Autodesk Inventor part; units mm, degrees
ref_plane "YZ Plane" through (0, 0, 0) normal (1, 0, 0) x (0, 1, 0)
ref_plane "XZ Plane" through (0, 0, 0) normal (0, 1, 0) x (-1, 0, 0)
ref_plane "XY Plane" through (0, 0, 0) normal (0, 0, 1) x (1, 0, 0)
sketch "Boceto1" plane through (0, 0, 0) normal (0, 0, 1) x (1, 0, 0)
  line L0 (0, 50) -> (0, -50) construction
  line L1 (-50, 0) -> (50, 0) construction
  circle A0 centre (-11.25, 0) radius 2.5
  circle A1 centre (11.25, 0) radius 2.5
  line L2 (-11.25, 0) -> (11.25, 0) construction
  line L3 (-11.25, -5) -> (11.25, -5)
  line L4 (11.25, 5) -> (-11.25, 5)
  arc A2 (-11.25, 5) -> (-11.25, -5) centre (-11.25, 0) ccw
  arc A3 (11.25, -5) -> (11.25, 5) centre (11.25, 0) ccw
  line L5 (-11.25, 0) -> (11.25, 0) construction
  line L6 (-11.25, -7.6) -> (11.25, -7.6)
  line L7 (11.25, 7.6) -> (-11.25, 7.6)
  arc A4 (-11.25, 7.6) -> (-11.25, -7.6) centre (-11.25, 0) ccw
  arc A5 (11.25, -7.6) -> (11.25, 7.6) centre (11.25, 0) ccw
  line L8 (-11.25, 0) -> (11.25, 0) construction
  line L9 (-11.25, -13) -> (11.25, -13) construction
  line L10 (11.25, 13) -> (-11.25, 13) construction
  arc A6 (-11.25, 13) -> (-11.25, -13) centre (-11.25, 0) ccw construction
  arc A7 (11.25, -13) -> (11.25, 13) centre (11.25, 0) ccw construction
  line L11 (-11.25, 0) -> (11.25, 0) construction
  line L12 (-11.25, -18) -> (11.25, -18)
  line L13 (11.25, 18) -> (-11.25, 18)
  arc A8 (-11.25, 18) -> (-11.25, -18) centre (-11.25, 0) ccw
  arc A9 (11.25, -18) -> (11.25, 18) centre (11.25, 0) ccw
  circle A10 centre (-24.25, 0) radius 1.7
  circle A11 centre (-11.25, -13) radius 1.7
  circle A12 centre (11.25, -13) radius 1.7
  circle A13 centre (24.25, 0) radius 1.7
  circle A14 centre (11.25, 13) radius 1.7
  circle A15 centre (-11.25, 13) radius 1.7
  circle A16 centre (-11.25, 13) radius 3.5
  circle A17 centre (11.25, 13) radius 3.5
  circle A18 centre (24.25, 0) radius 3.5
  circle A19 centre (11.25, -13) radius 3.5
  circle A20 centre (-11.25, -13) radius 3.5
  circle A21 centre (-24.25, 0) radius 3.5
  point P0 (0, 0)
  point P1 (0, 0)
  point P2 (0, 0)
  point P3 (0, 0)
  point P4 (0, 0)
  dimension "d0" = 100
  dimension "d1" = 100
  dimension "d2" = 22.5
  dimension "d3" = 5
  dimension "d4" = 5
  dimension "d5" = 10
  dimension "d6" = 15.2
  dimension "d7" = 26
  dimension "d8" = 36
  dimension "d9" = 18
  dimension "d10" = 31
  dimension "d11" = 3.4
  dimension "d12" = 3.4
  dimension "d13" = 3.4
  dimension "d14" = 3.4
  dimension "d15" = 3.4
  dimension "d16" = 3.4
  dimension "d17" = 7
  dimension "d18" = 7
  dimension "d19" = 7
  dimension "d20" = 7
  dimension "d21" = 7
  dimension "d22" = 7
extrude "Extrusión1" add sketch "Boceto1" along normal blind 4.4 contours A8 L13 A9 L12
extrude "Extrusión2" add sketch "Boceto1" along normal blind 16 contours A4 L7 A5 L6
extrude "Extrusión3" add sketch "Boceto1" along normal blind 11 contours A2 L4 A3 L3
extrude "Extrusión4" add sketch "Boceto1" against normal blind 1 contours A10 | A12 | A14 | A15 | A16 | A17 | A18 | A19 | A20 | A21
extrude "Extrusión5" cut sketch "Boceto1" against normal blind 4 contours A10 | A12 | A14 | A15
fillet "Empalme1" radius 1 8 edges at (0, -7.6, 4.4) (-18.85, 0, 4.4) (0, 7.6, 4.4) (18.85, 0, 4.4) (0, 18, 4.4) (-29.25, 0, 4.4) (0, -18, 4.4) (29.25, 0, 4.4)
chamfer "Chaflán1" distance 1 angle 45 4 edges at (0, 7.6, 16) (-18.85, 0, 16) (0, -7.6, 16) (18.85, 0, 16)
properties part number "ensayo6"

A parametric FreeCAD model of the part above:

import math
import FreeCAD as App
import Part
import Sketcher


def edges_at(feature, points):
    """Names of the edges that pass closest to the given points."""
    edges = feature.Shape.Edges
    near = lambda p: min(range(len(edges)), key=lambda i: edges[i].distToShape(Part.Vertex(*p))[0])
    return sorted({f"Edge{near(p) + 1}" for p in points})

doc = App.newDocument("Part")
body = doc.addObject("PartDesign::Body", "Body")
body.AllowCompound = True

sketch1 = body.newObject("Sketcher::SketchObject", "Sketch")
sketch1.AttachmentSupport = (doc.getObject("XY_Plane"), [""])
sketch1.MapMode = "FlatFace"
sketch1.addGeometry(Part.ArcOfCircle(Part.Circle(App.Vector(-11.2, 0, 0), App.Vector(0, 0, 1), 18), math.radians(90), math.radians(270)), False)
sketch1.addGeometry(Part.LineSegment(App.Vector(-11.2, -18, 0), App.Vector(11.2, -18, 0)), False)
sketch1.addGeometry(Part.ArcOfCircle(Part.Circle(App.Vector(11.2, 0, 0), App.Vector(0, 0, 1), 18), math.radians(-90), math.radians(90)), False)
sketch1.addGeometry(Part.LineSegment(App.Vector(11.2, 18, 0), App.Vector(-11.2, 18, 0)), False)
sketch1.addGeometry(Part.Circle(App.Vector(-11.2, -13, 0), App.Vector(0, 0, 1), 3.5), False)
sketch1.addGeometry(Part.Circle(App.Vector(11.2, -13, 0), App.Vector(0, 0, 1), 3.5), False)
sketch1.addGeometry(Part.Circle(App.Vector(-24.2, 0, 0), App.Vector(0, 0, 1), 3.5), False)
sketch1.addGeometry(Part.Circle(App.Vector(-11.2, 13, 0), App.Vector(0, 0, 1), 3.5), False)
sketch1.addGeometry(Part.LineSegment(App.Vector(11.2, -7.6, 0), App.Vector(-11.2, -7.6, 0)), False)
sketch1.addGeometry(Part.ArcOfCircle(Part.Circle(App.Vector(-11.2, 0, 0), App.Vector(0, 0, 1), 7.6), math.radians(90), math.radians(270)), False)
sketch1.addGeometry(Part.LineSegment(App.Vector(-11.2, 7.6, 0), App.Vector(11.2, 7.6, 0)), False)
sketch1.addGeometry(Part.ArcOfCircle(Part.Circle(App.Vector(11.2, 0, 0), App.Vector(0, 0, 1), 7.6), math.radians(-90), math.radians(90)), False)
sketch1.addGeometry(Part.Circle(App.Vector(24.2, 0, 0), App.Vector(0, 0, 1), 3.5), False)
sketch1.addGeometry(Part.Circle(App.Vector(11.2, 13, 0), App.Vector(0, 0, 1), 3.5), False)
sketch1.addConstraint(Sketcher.Constraint("Tangent", 0, 2, 1, 1))
sketch1.addConstraint(Sketcher.Constraint("Tangent", 1, 2, 2, 1))
sketch1.addConstraint(Sketcher.Constraint("Tangent", 2, 2, 3, 1))
sketch1.addConstraint(Sketcher.Constraint("Tangent", 3, 2, 0, 1))
sketch1.addConstraint(Sketcher.Constraint("Tangent", 8, 2, 9, 2))
sketch1.addConstraint(Sketcher.Constraint("Tangent", 9, 1, 10, 1))
sketch1.addConstraint(Sketcher.Constraint("Tangent", 10, 2, 11, 2))
sketch1.addConstraint(Sketcher.Constraint("Tangent", 11, 1, 8, 1))
sketch1.addConstraint(Sketcher.Constraint("Horizontal", 1))
sketch1.addConstraint(Sketcher.Constraint("Horizontal", 3))
sketch1.addConstraint(Sketcher.Constraint("Horizontal", 8))
sketch1.addConstraint(Sketcher.Constraint("Horizontal", 10))
sketch1.addConstraint(Sketcher.Constraint("Coincident", 9, 3, 0, 3))
sketch1.addConstraint(Sketcher.Constraint("Equal", 4, 5))
sketch1.addConstraint(Sketcher.Constraint("Equal", 5, 6))
sketch1.addConstraint(Sketcher.Constraint("Equal", 6, 7))
sketch1.addConstraint(Sketcher.Constraint("Equal", 7, 12))
sketch1.addConstraint(Sketcher.Constraint("Equal", 12, 13))
sketch1.addConstraint(Sketcher.Constraint("Symmetric", 0, 3, 2, 3, -1, 1))
sketch1.addConstraint(Sketcher.Constraint("Symmetric", 5, 3, 7, 3, -1, 1))
sketch1.addConstraint(Sketcher.Constraint("Symmetric", 6, 3, 12, 3, -1, 1))
sketch1.addConstraint(Sketcher.Constraint("Symmetric", 4, 3, 13, 3, -1, 1))
sketch1.addConstraint(Sketcher.Constraint("Symmetric", 4, 3, 5, 3, -2))
sketch1.addConstraint(Sketcher.Constraint("PointOnObject", 6, 3, -1))
sketch1.addConstraint(Sketcher.Constraint("Vertical", 0, 3, 4, 3))
sketch1.addConstraint(Sketcher.Constraint("Vertical", 5, 3, 11, 3))
sketch1.addConstraint(Sketcher.Constraint("Diameter", 4, 7.0))
sketch1.addConstraint(Sketcher.Constraint("Radius", 0, 18.0))
sketch1.addConstraint(Sketcher.Constraint("Radius", 9, 7.6))
sketch1.addConstraint(Sketcher.Constraint("DistanceX", 1, 1, 1, 2, 22.5))
sketch1.addConstraint(Sketcher.Constraint("DistanceY", 4, 3, 7, 3, 26.0))
sketch1.addConstraint(Sketcher.Constraint("DistanceX", 6, 3, 0, 3, 13.0))
pad1 = body.newObject("PartDesign::Pad", "Pad")
pad1.Profile = sketch1
pad1.Length = 4.4

sketch2 = body.newObject("Sketcher::SketchObject", "Sketch001")
sketch2.AttachmentSupport = (doc.getObject("XY_Plane"), [""])
sketch2.MapMode = "FlatFace"
sketch2.addGeometry(Part.ArcOfCircle(Part.Circle(App.Vector(-11, 0, 0), App.Vector(0, 0, 1), 8), math.radians(90), math.radians(270)), False)
sketch2.addGeometry(Part.LineSegment(App.Vector(-11, -8, 0), App.Vector(11, -8, 0)), False)
sketch2.addGeometry(Part.ArcOfCircle(Part.Circle(App.Vector(11, 0, 0), App.Vector(0, 0, 1), 8), math.radians(-90), math.radians(90)), False)
sketch2.addGeometry(Part.LineSegment(App.Vector(11, 8, 0), App.Vector(-11, 8, 0)), False)
sketch2.addGeometry(Part.LineSegment(App.Vector(11, -5, 0), App.Vector(-11, -5, 0)), False)
sketch2.addGeometry(Part.ArcOfCircle(Part.Circle(App.Vector(-11, 0, 0), App.Vector(0, 0, 1), 5), math.radians(90), math.radians(270)), False)
sketch2.addGeometry(Part.LineSegment(App.Vector(-11, 5, 0), App.Vector(11, 5, 0)), False)
sketch2.addGeometry(Part.ArcOfCircle(Part.Circle(App.Vector(11, 0, 0), App.Vector(0, 0, 1), 5), math.radians(-90), math.radians(90)), False)
sketch2.addConstraint(Sketcher.Constraint("Tangent", 0, 2, 1, 1))
sketch2.addConstraint(Sketcher.Constraint("Tangent", 1, 2, 2, 1))
sketch2.addConstraint(Sketcher.Constraint("Tangent", 2, 2, 3, 1))
sketch2.addConstraint(Sketcher.Constraint("Tangent", 3, 2, 0, 1))
sketch2.addConstraint(Sketcher.Constraint("Tangent", 4, 2, 5, 2))
sketch2.addConstraint(Sketcher.Constraint("Tangent", 5, 1, 6, 1))
sketch2.addConstraint(Sketcher.Constraint("Tangent", 6, 2, 7, 2))
sketch2.addConstraint(Sketcher.Constraint("Tangent", 7, 1, 4, 1))
sketch2.addConstraint(Sketcher.Constraint("Horizontal", 1))
sketch2.addConstraint(Sketcher.Constraint("Horizontal", 3))
sketch2.addConstraint(Sketcher.Constraint("Horizontal", 4))
sketch2.addConstraint(Sketcher.Constraint("Horizontal", 6))
sketch2.addConstraint(Sketcher.Constraint("Coincident", 5, 3, 0, 3))
sketch2.addConstraint(Sketcher.Constraint("Symmetric", 0, 3, 2, 3, -1, 1))
sketch2.addConstraint(Sketcher.Constraint("Vertical", 7, 3, 1, 2))
sketch2.addConstraint(Sketcher.Constraint("Radius", 5, 5.0))
sketch2.addConstraint(Sketcher.Constraint("Radius", 0, 7.6))
sketch2.addConstraint(Sketcher.Constraint("DistanceX", 1, 1, 1, 2, 22.5))
pad2 = body.newObject("PartDesign::Pad", "Pad001")
pad2.Profile = sketch2
pad2.Length = 16

sketch3 = body.newObject("Sketcher::SketchObject", "Sketch002")
sketch3.AttachmentSupport = (doc.getObject("XY_Plane"), [""])
sketch3.MapMode = "FlatFace"
sketch3.addGeometry(Part.ArcOfCircle(Part.Circle(App.Vector(-11.2, 0, 0), App.Vector(0, 0, 1), 5), math.radians(90), math.radians(270)), False)
sketch3.addGeometry(Part.LineSegment(App.Vector(-11.2, -5, 0), App.Vector(11.2, -5, 0)), False)
sketch3.addGeometry(Part.ArcOfCircle(Part.Circle(App.Vector(11.2, 0, 0), App.Vector(0, 0, 1), 5), math.radians(-90), math.radians(90)), False)
sketch3.addGeometry(Part.LineSegment(App.Vector(11.2, 5, 0), App.Vector(-11.2, 5, 0)), False)
sketch3.addGeometry(Part.Circle(App.Vector(-11.2, 0, 0), App.Vector(0, 0, 1), 2.5), False)
sketch3.addGeometry(Part.Circle(App.Vector(11.2, 0, 0), App.Vector(0, 0, 1), 2.5), False)
sketch3.addConstraint(Sketcher.Constraint("Tangent", 0, 2, 1, 1))
sketch3.addConstraint(Sketcher.Constraint("Tangent", 1, 2, 2, 1))
sketch3.addConstraint(Sketcher.Constraint("Tangent", 2, 2, 3, 1))
sketch3.addConstraint(Sketcher.Constraint("Tangent", 3, 2, 0, 1))
sketch3.addConstraint(Sketcher.Constraint("Horizontal", 1))
sketch3.addConstraint(Sketcher.Constraint("Horizontal", 3))
sketch3.addConstraint(Sketcher.Constraint("Coincident", 4, 3, 0, 3))
sketch3.addConstraint(Sketcher.Constraint("Coincident", 5, 3, 2, 3))
sketch3.addConstraint(Sketcher.Constraint("Equal", 4, 5))
sketch3.addConstraint(Sketcher.Constraint("Symmetric", 0, 3, 2, 3, -1, 1))
sketch3.addConstraint(Sketcher.Constraint("Diameter", 4, 5.0))
sketch3.addConstraint(Sketcher.Constraint("Radius", 0, 5.0))
sketch3.addConstraint(Sketcher.Constraint("DistanceX", 1, 1, 1, 2, 22.5))
pad3 = body.newObject("PartDesign::Pad", "Pad002")
pad3.Profile = sketch3
pad3.Length = 11

sketch4 = body.newObject("Sketcher::SketchObject", "Sketch003")
sketch4.AttachmentSupport = (doc.getObject("XY_Plane"), [""])
sketch4.MapMode = "FlatFace"
sketch4.addGeometry(Part.Circle(App.Vector(-24.2, 0, 0), App.Vector(0, 0, 1), 3.5), False)
sketch4.addGeometry(Part.Circle(App.Vector(11.2, -13, 0), App.Vector(0, 0, 1), 3.5), False)
sketch4.addGeometry(Part.Circle(App.Vector(11.2, 13, 0), App.Vector(0, 0, 1), 3.5), False)
sketch4.addGeometry(Part.Circle(App.Vector(-11.2, 13, 0), App.Vector(0, 0, 1), 3.5), False)
sketch4.addGeometry(Part.Circle(App.Vector(24.2, 0, 0), App.Vector(0, 0, 1), 3.5), False)
sketch4.addGeometry(Part.Circle(App.Vector(24.2, 0, 0), App.Vector(0, 0, 1), 1.7), False)
sketch4.addGeometry(Part.Circle(App.Vector(-11.2, -13, 0), App.Vector(0, 0, 1), 3.5), False)
sketch4.addGeometry(Part.Circle(App.Vector(-11.2, -13, 0), App.Vector(0, 0, 1), 1.7), False)
sketch4.addConstraint(Sketcher.Constraint("Coincident", 5, 3, 4, 3))
sketch4.addConstraint(Sketcher.Constraint("Coincident", 7, 3, 6, 3))
sketch4.addConstraint(Sketcher.Constraint("Equal", 0, 1))
sketch4.addConstraint(Sketcher.Constraint("Equal", 1, 2))
sketch4.addConstraint(Sketcher.Constraint("Equal", 2, 3))
sketch4.addConstraint(Sketcher.Constraint("Equal", 3, 4))
sketch4.addConstraint(Sketcher.Constraint("Equal", 4, 6))
sketch4.addConstraint(Sketcher.Constraint("Equal", 5, 7))
sketch4.addConstraint(Sketcher.Constraint("Symmetric", 1, 3, 3, 3, -1, 1))
sketch4.addConstraint(Sketcher.Constraint("Symmetric", 0, 3, 4, 3, -1, 1))
sketch4.addConstraint(Sketcher.Constraint("Symmetric", 2, 3, 6, 3, -1, 1))
sketch4.addConstraint(Sketcher.Constraint("Symmetric", 2, 3, 3, 3, -2))
sketch4.addConstraint(Sketcher.Constraint("PointOnObject", 0, 3, -1))
sketch4.addConstraint(Sketcher.Constraint("Diameter", 0, 7.0))
sketch4.addConstraint(Sketcher.Constraint("Diameter", 5, 3.4))
sketch4.addConstraint(Sketcher.Constraint("DistanceY", 1, 3, 2, 3, 26.0))
sketch4.addConstraint(Sketcher.Constraint("DistanceX", 3, 3, 2, 3, 22.5))
sketch4.addConstraint(Sketcher.Constraint("DistanceX", 0, 3, 3, 3, 13.0))
pad4 = body.newObject("PartDesign::Pad", "Pad003")
pad4.Profile = sketch4
pad4.Length = 1
pad4.Reversed = True

sketch5 = body.newObject("Sketcher::SketchObject", "Sketch004")
sketch5.AttachmentSupport = (doc.getObject("XY_Plane"), [""])
sketch5.MapMode = "FlatFace"
sketch5.addGeometry(Part.Circle(App.Vector(-24.2, 0, 0), App.Vector(0, 0, 1), 1.7), False)
sketch5.addGeometry(Part.Circle(App.Vector(11.2, -13, 0), App.Vector(0, 0, 1), 1.7), False)
sketch5.addGeometry(Part.Circle(App.Vector(11.2, 13, 0), App.Vector(0, 0, 1), 1.7), False)
sketch5.addGeometry(Part.Circle(App.Vector(-11.2, 13, 0), App.Vector(0, 0, 1), 1.7), False)
sketch5.addConstraint(Sketcher.Constraint("Equal", 0, 1))
sketch5.addConstraint(Sketcher.Constraint("Equal", 1, 2))
sketch5.addConstraint(Sketcher.Constraint("Equal", 2, 3))
sketch5.addConstraint(Sketcher.Constraint("Symmetric", 1, 3, 3, 3, -1, 1))
sketch5.addConstraint(Sketcher.Constraint("Symmetric", 2, 3, 3, 3, -2))
sketch5.addConstraint(Sketcher.Constraint("PointOnObject", 0, 3, -1))
sketch5.addConstraint(Sketcher.Constraint("Diameter", 0, 3.4))
sketch5.addConstraint(Sketcher.Constraint("DistanceY", 1, 3, 2, 3, 26.0))
sketch5.addConstraint(Sketcher.Constraint("DistanceX", 3, 3, 2, 3, 22.5))
sketch5.addConstraint(Sketcher.Constraint("DistanceX", 0, 3, 3, 3, 13.0))
pocket1 = body.newObject("PartDesign::Pocket", "Pocket")
pocket1.Profile = sketch5
pocket1.Length = 4
doc.recompute()

fillet = body.newObject("PartDesign::Fillet", "Fillet")
fillet.Base = (pocket1, edges_at(pocket1, [
    (0, -7.6, 4.4),
    (-18.85, 0, 4.4),
    (0, 7.6, 4.4),
    (18.85, 0, 4.4),
    (0, 18, 4.4),
    (-29.25, 0, 4.4),
    (0, -18, 4.4),
    (29.25, 0, 4.4),
]))
fillet.Radius = 1
doc.recompute()

chamfer = body.newObject("PartDesign::Chamfer", "Chamfer")
chamfer.Base = (fillet, edges_at(fillet, [
    (0, 7.6, 16),
    (-18.85, 0, 16),
    (0, -7.6, 16),
    (18.85, 0, 16),
]))
chamfer.Size = 1

doc.recompute()
